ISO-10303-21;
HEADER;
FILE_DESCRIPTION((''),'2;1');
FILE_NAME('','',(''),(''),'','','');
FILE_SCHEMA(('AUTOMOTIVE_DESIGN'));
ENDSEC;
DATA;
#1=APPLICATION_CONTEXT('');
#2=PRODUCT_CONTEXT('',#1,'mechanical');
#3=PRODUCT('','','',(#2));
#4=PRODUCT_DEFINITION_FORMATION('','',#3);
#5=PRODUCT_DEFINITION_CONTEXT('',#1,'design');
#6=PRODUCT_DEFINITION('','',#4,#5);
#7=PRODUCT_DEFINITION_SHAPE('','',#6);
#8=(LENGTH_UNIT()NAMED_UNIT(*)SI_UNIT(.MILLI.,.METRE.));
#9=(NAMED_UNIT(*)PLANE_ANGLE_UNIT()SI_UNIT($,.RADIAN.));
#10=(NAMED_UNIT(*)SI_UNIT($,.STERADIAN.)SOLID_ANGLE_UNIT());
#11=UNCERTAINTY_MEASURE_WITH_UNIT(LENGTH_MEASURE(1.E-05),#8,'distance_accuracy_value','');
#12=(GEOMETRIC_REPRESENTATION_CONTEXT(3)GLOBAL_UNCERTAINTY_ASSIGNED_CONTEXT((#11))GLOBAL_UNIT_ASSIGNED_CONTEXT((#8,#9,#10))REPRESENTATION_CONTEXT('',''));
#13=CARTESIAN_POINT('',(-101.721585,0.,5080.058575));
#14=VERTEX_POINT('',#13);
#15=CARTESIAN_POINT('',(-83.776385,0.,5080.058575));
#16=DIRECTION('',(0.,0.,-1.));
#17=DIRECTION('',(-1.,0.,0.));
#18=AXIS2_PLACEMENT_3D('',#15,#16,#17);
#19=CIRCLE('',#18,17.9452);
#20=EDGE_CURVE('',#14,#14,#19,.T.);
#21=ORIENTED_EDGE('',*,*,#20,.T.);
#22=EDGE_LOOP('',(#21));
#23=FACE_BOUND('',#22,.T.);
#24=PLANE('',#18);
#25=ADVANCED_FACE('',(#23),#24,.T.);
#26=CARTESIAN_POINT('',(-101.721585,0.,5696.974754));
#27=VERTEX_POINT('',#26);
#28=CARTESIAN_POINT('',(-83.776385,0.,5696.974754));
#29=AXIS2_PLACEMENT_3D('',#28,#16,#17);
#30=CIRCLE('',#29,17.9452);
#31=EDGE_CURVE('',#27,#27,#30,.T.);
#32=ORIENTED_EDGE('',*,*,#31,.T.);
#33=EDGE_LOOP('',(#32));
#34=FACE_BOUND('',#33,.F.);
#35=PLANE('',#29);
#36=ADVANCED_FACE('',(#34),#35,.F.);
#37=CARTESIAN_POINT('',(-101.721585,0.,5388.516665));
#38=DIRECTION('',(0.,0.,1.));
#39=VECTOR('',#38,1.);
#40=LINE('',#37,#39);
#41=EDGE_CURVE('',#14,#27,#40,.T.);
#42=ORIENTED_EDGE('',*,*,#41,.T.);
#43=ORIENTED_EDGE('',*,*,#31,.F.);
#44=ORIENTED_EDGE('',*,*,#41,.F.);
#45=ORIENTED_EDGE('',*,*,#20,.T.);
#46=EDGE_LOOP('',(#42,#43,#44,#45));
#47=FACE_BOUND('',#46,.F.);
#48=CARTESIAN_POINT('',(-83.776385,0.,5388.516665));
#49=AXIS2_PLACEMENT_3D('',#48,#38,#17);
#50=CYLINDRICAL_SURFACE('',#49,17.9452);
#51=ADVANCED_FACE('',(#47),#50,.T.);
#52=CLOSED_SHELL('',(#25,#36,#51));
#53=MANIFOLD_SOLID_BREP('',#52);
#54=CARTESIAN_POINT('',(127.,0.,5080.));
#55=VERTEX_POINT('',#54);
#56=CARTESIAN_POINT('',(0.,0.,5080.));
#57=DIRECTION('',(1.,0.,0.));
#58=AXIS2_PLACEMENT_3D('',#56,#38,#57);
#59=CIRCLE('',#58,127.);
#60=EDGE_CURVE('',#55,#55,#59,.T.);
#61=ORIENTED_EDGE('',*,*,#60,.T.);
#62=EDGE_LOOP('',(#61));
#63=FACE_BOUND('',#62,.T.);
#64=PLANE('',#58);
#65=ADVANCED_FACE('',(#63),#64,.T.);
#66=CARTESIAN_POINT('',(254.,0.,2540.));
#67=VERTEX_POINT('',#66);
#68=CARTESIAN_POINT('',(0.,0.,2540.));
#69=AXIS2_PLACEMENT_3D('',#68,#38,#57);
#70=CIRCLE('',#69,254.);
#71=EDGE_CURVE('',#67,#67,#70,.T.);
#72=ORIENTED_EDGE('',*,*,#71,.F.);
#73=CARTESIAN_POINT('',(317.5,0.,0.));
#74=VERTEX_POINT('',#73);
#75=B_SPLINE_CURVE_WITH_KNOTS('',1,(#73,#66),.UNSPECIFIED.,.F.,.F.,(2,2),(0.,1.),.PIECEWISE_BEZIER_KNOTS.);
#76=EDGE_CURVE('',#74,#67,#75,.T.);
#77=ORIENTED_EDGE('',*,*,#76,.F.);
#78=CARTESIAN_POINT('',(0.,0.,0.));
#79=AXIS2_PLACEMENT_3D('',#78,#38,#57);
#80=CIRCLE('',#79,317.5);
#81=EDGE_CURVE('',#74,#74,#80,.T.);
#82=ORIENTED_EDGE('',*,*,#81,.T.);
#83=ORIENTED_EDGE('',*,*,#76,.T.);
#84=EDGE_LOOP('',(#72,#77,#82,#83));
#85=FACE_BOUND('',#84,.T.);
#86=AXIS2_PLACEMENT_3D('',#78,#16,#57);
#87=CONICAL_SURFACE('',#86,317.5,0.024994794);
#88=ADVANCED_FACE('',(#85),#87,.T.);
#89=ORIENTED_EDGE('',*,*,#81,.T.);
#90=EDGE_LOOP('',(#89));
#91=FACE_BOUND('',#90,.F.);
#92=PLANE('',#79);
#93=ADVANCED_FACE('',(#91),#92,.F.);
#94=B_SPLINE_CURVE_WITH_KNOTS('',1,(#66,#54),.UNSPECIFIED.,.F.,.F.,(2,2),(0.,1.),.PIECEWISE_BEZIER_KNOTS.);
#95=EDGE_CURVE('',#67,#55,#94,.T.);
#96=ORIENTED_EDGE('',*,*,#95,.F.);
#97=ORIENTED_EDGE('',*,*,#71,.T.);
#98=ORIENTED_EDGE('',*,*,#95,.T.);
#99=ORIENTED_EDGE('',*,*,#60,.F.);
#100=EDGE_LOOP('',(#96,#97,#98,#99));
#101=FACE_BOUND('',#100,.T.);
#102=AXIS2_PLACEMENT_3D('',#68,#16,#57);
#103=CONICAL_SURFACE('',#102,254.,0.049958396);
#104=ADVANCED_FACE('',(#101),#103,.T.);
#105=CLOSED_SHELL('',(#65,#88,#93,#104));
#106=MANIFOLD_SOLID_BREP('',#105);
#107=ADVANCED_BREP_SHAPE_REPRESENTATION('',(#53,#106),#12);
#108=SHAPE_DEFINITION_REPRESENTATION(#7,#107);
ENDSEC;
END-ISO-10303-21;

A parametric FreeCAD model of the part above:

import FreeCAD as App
import Part
import Sketcher
from FreeCAD import Vector
Q = App.Units.Quantity


def add_polygon(sketch, points):
    """Adds a closed chain of lines whose ends are joined by coincident constraints."""
    first, n = sketch.GeometryCount, len(points)
    for a, b in zip(points, points[1:] + points[:1]):
        sketch.addGeometry(Part.LineSegment(App.Vector(*a, 0), App.Vector(*b, 0)), False)
    for i in range(n):
        sketch.addConstraint(Sketcher.Constraint("Coincident", first + i, 2, first + (i + 1) % n, 1))

doc = App.newDocument("Part")
body = doc.addObject("PartDesign::Body", "Body")

# Sketch on XY plane
sketch1 = body.newObject("Sketcher::SketchObject", "Sketch")
sketch1.AttachmentSupport = (doc.getObject("XY_Plane"), [""])
sketch1.MapMode = "FlatFace"
sketch1.addGeometry(Part.Circle(Vector(0, 0, 0), Vector(0, 0, 1), 318), False)
sketch1.addConstraint([
    Sketcher.Constraint("Coincident", 0, 3, -1, 1),
    Sketcher.Constraint("Diameter", 0, Q("25 in")),
])

# Sketch on XY plane
sketch2 = body.newObject("Sketcher::SketchObject", "Sketch001")
sketch2.AttachmentSupport = (doc.getObject("XY_Plane"), [""])
sketch2.MapMode = "FlatFace"
sketch2.AttachmentOffset = App.Placement(Vector(0, 0, 100 * 25.4), App.Rotation())
sketch2.addGeometry(Part.Circle(Vector(0, 0, 0), Vector(0, 0, 1), 254), False)
sketch2.addConstraint([
    Sketcher.Constraint("Coincident", 0, 3, -1, 1),
    Sketcher.Constraint("Diameter", 0, Q("20 in")),
])

additiveloft = body.newObject("PartDesign::AdditiveLoft", "AdditiveLoft")
additiveloft.Profile = sketch1
additiveloft.Sections = [sketch2]

# Sketch on XY plane
sketch3 = body.newObject("Sketcher::SketchObject", "Sketch002")
sketch3.AttachmentSupport = (doc.getObject("XY_Plane"), [""])
sketch3.MapMode = "FlatFace"
sketch3.AttachmentOffset = App.Placement(Vector(0, 0, 100 * 25.4), App.Rotation())
sketch3.addGeometry(Part.Circle(Vector(0, 0, 0), Vector(0, 0, 1), 254), False)
sketch3.addConstraint([
    Sketcher.Constraint("Coincident", 0, 3, -1, 1),
    Sketcher.Constraint("Diameter", 0, Q("20 in")),
])

# Sketch on XY plane
sketch4 = body.newObject("Sketcher::SketchObject", "Sketch003")
sketch4.AttachmentSupport = (doc.getObject("XY_Plane"), [""])
sketch4.MapMode = "FlatFace"
sketch4.AttachmentOffset = App.Placement(Vector(0, 0, 200 * 25.4), App.Rotation())
sketch4.addGeometry(Part.Circle(Vector(0, 0, 0), Vector(0, 0, 1), 127), False)
sketch4.addConstraint([
    Sketcher.Constraint("Coincident", 0, 3, -1, 1),
    Sketcher.Constraint("Diameter", 0, Q("10 in")),
])

additiveloft2 = body.newObject("PartDesign::AdditiveLoft", "AdditiveLoft001")
additiveloft2.Profile = sketch3
additiveloft2.Sections = [sketch4]
body2 = doc.addObject("PartDesign::Body", "Body001")

# Sketch on XZ plane
sketch5 = body2.newObject("Sketcher::SketchObject", "Sketch004")
sketch5.AttachmentSupport = (doc.getObject("XZ_Plane001"), [""])
sketch5.MapMode = "FlatFace"
add_polygon(sketch5, [(-102, 5697), (-102, 5080), (-84, 5080), (-84, 5697)])  # lines 0-3
sketch5.addGeometry(Part.LineSegment(Vector(-84, 5697, 0), Vector(-84, 5080, 0)), True)  # axis
sketch5.addConstraint([
    Sketcher.Constraint("Vertical", 0),
    Sketcher.Constraint("Horizontal", 1),
    Sketcher.Constraint("Vertical", 2),
    Sketcher.Constraint("Horizontal", 3),
    Sketcher.Constraint("Vertical", 4),
    Sketcher.Constraint("Coincident", 4, 1, 2, 2),
    Sketcher.Constraint("Horizontal", 0, 2, 4, 2),
    Sketcher.Constraint("DistanceX", 1, 1, 1, 2, Q("17.9452 mm")),
    Sketcher.Constraint("DistanceY", 0, 2, 0, 1, Q("616.91618 mm")),
    Sketcher.Constraint("DistanceX", 0, 2, -1, 1, Q("101.721585 mm")),
    Sketcher.Constraint("DistanceY", -1, 1, 0, 2, Q("5080.058575 mm")),
])
revolution = body2.newObject("PartDesign::Revolution", "Revolution")
revolution.Profile = sketch5
revolution.ReferenceAxis = (sketch5, ["Axis0"])
revolution.Angle = 360

doc.recompute()
